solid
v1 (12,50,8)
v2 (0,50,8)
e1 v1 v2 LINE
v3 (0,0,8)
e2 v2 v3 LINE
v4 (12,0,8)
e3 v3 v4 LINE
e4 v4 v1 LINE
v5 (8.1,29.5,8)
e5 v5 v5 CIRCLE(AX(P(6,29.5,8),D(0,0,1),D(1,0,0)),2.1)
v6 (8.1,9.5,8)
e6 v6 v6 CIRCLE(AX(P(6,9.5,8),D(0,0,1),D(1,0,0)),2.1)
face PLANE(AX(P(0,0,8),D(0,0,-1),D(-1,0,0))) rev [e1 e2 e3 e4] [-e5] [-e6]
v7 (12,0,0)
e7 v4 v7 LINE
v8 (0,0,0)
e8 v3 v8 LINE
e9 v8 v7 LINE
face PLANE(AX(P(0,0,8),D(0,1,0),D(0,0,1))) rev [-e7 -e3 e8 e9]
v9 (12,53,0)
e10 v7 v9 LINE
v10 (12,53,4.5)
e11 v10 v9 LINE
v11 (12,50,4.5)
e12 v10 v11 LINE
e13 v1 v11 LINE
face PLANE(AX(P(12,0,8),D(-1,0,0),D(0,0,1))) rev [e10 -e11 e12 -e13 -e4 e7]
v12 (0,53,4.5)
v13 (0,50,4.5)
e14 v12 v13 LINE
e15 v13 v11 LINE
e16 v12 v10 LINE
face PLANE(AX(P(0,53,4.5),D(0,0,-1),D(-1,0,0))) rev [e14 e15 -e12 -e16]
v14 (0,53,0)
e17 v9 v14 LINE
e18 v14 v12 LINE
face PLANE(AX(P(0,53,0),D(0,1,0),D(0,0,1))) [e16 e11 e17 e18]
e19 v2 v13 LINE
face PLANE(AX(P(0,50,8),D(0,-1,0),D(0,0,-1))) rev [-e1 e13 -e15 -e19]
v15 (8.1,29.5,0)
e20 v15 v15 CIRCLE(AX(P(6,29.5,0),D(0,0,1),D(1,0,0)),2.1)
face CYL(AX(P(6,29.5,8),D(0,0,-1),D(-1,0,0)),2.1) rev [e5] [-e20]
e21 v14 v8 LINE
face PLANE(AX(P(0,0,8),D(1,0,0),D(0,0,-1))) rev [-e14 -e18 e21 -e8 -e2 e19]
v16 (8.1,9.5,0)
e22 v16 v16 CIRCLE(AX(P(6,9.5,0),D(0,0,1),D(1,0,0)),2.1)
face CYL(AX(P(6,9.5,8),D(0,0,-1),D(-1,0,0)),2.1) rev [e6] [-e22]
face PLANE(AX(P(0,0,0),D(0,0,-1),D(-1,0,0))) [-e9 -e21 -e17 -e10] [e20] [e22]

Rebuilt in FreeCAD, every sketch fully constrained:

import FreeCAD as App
import Part
import Sketcher
from FreeCAD import Vector
Q = App.Units.Quantity


def add_polygon(sketch, points):
    """Adds a closed chain of lines whose ends are joined by coincident constraints."""
    first, n = sketch.GeometryCount, len(points)
    for a, b in zip(points, points[1:] + points[:1]):
        sketch.addGeometry(Part.LineSegment(App.Vector(*a, 0), App.Vector(*b, 0)), False)
    for i in range(n):
        sketch.addConstraint(Sketcher.Constraint("Coincident", first + i, 2, first + (i + 1) % n, 1))

doc = App.newDocument("Part")
params = doc.addObject("Spreadsheet::Sheet", "Params")
for row, (alias, value) in enumerate([
    ("sketch1_diameter", "4.2 mm"),
    ("sketch1_width", "12 mm"),
    ("sketch1_height", "50 mm"),
    ("pad1_length", "8 mm"),
    ("sketch2_width", "12 mm"),
    ("sketch2_height", "4.5 mm"),
    ("pad2_length", "3 mm"),
], start=1):
    params.set(f"A{row}", alias)
    params.set(f"B{row}", "=" + value)
    params.setAlias(f"B{row}", alias)

body = doc.addObject("PartDesign::Body", "Body")

sketch1 = doc.addObject("Sketcher::SketchObject", "Sketch")
body.addObject(sketch1)
sketch1.AttachmentSupport = (doc.XY_Plane, [""])
sketch1.MapMode = "FlatFace"
add_polygon(sketch1, [(0, 50), (0, 0), (12, 0), (12, 50)])
sketch1.addGeometry(Part.Circle(Vector(6, 9.5, 0), Vector(0, 0, 1), 2.1), False)
sketch1.addGeometry(Part.Circle(Vector(6, 29.5, 0), Vector(0, 0, 1), 2.1), False)
sketch1.addConstraint([
    Sketcher.Constraint("Vertical", 0),
    Sketcher.Constraint("Horizontal", 1),
    Sketcher.Constraint("Vertical", 2),
    Sketcher.Constraint("Horizontal", 3),
    Sketcher.Constraint("Coincident", 0, 2, -1, 1),
    Sketcher.Constraint("Equal", 4, 5),
    Sketcher.Constraint("Vertical", 4, 3, 5, 3),
    Sketcher.Constraint("Diameter", 4, Q("4.2 mm")),
    Sketcher.Constraint("DistanceX", 1, 1, 1, 2, Q("12 mm")),
    Sketcher.Constraint("DistanceY", 0, 2, 0, 1, Q("50 mm")),
    Sketcher.Constraint("DistanceX", -1, 1, 4, 3, Q("6 mm")),
    Sketcher.Constraint("DistanceY", 4, 3, 5, 3, Q("20 mm")),
    Sketcher.Constraint("DistanceY", -1, 1, 4, 3, Q("9.5 mm")),
])
sketch1.setExpression("Constraints[11]", "Params.sketch1_diameter")
sketch1.setExpression("Constraints[12]", "Params.sketch1_width")
sketch1.setExpression("Constraints[13]", "Params.sketch1_height")
pad1 = doc.addObject("PartDesign::Pad", "Pad")
body.addObject(pad1)
pad1.Profile = sketch1
pad1.setExpression("Length", "Params.pad1_length")

sketch2 = doc.addObject("Sketcher::SketchObject", "Sketch001")
body.addObject(sketch2)
sketch2.AttachmentSupport = (doc.XZ_Plane, [""])
sketch2.MapMode = "FlatFace"
sketch2.AttachmentOffset = App.Placement(Vector(0, 0, -50), App.Rotation())
add_polygon(sketch2, [(0, 0), (0, 4.5), (12, 4.5), (12, 0)])
sketch2.addConstraint([
    Sketcher.Constraint("Vertical", 0),
    Sketcher.Constraint("Horizontal", 1),
    Sketcher.Constraint("Vertical", 2),
    Sketcher.Constraint("Horizontal", 3),
    Sketcher.Constraint("Coincident", 3, 2, -1, 1),
    Sketcher.Constraint("DistanceX", 1, 1, 1, 2, Q("12 mm")),
    Sketcher.Constraint("DistanceY", 0, 1, 0, 2, Q("4.5 mm")),
])
sketch2.setExpression("Constraints[9]", "Params.sketch2_width")
sketch2.setExpression("Constraints[10]", "Params.sketch2_height")
pad2 = doc.addObject("PartDesign::Pad", "Pad001")
body.addObject(pad2)
pad2.Profile = sketch2
pad2.setExpression("Length", "Params.pad2_length")
pad2.Reversed = True

doc.recompute()
